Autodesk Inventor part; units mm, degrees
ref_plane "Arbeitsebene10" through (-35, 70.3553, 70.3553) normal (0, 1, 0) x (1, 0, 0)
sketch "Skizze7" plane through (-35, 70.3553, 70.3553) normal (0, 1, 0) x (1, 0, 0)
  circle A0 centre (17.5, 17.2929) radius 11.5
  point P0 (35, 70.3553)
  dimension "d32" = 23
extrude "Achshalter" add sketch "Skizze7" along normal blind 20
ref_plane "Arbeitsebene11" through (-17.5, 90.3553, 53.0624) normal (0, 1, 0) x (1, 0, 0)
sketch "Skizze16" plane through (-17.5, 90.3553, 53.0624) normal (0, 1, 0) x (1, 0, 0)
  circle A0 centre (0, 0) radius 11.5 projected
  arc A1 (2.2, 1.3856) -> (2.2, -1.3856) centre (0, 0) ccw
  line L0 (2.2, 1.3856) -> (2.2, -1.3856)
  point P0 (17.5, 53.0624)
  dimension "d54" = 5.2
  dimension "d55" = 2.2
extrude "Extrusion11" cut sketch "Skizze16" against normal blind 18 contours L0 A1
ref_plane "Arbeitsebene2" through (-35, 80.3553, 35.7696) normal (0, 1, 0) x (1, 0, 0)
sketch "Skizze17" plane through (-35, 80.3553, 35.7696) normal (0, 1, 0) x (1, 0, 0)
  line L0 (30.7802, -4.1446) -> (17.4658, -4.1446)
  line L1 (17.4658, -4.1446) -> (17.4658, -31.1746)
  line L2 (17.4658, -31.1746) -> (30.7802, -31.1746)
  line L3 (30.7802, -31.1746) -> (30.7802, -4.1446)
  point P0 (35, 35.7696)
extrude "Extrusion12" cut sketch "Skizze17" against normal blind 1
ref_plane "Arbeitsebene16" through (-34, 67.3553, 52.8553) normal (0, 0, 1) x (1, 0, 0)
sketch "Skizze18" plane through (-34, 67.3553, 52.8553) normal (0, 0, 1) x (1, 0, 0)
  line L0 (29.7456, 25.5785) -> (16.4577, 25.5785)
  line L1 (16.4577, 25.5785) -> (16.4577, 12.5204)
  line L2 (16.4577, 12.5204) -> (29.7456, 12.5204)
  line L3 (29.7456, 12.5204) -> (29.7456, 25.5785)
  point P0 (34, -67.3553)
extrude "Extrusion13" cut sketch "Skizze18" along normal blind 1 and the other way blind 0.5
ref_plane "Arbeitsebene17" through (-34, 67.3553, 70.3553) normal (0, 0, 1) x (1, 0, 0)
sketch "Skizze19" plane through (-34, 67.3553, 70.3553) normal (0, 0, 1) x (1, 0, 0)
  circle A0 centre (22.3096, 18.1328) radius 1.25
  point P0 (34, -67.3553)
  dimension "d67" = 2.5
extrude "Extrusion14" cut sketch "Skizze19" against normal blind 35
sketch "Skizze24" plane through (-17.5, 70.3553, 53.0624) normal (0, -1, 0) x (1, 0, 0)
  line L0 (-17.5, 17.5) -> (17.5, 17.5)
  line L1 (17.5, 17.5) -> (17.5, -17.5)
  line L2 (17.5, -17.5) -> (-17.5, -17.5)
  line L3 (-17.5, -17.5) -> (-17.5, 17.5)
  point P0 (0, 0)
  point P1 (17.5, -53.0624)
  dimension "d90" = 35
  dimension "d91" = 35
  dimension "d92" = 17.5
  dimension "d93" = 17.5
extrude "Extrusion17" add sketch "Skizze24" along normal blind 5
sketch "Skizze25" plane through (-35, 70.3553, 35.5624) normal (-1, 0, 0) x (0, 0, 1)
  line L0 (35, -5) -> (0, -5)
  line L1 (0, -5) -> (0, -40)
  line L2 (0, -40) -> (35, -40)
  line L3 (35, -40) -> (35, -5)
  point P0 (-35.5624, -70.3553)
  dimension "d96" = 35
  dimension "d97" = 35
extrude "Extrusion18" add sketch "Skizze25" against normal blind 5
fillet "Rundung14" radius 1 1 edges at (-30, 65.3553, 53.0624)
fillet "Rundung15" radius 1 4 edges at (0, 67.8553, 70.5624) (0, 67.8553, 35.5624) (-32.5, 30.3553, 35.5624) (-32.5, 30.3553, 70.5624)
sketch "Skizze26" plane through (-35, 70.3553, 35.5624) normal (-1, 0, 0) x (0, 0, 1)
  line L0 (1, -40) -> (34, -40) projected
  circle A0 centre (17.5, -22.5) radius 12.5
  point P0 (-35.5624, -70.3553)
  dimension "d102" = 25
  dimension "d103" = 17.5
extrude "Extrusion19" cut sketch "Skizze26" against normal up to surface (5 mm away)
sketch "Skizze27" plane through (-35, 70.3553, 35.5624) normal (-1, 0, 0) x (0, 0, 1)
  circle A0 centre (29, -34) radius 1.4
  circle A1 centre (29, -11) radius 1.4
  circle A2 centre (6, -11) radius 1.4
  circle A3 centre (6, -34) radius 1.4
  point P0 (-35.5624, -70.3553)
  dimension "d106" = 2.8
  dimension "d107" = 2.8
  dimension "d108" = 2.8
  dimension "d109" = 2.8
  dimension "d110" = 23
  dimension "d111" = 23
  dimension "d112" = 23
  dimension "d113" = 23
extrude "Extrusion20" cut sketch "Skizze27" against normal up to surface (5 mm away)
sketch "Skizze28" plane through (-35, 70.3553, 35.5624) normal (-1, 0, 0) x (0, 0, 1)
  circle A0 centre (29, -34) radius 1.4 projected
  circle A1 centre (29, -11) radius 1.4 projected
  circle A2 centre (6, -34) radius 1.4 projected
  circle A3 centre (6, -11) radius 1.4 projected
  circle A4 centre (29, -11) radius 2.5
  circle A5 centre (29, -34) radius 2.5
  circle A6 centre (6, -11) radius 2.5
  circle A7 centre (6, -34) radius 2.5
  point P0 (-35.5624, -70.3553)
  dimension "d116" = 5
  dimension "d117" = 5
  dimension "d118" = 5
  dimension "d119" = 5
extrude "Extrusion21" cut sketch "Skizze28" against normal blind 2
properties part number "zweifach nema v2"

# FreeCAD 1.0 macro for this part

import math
import FreeCAD as App
import Part
import Sketcher
from FreeCAD import Vector
Q = App.Units.Quantity


def edges_at(feature, points):
    """Names of the edges that pass closest to the given points."""
    edges = feature.Shape.Edges
    near = lambda p: min(range(len(edges)), key=lambda i: edges[i].distToShape(Part.Vertex(*p))[0])
    return sorted({f"Edge{near(p) + 1}" for p in points})

doc = App.newDocument("Part")
body = doc.addObject("PartDesign::Body", "Body")

# Sketch on XZ plane
sketch1 = doc.addObject("Sketcher::SketchObject", "Sketch")
body.addObject(sketch1)
sketch1.AttachmentSupport = (doc.XZ_Plane, [""])
sketch1.MapMode = "FlatFace"
sketch1.AttachmentOffset = App.Placement(Vector(0, 0, -70.3553), App.Rotation())
sketch1.addGeometry(Part.Circle(Vector(-18, 53, 0), Vector(0, 0, 1), 12), False)
sketch1.addConstraint(Sketcher.Constraint("Diameter", 0, Q("23 mm")))
sketch1.addConstraint(Sketcher.Constraint("DistanceX", 0, 3, -1, 1, Q("17.5 mm")))
sketch1.addConstraint(Sketcher.Constraint("DistanceY", -1, 1, 0, 3, Q("53.0624 mm")))
pad1 = doc.addObject("PartDesign::Pad", "Pad")
body.addObject(pad1)
pad1.Profile = sketch1
pad1.Length = 20
pad1.Reversed = True

# Sketch on XZ plane
sketch2 = doc.addObject("Sketcher::SketchObject", "Sketch001")
body.addObject(sketch2)
sketch2.AttachmentSupport = (doc.XZ_Plane, [""])
sketch2.MapMode = "FlatFace"
sketch2.AttachmentOffset = App.Placement(Vector(0, 0, -90.3553), App.Rotation())
sketch2.addGeometry(Part.LineSegment(Vector(-15.3, 54.4, 0), Vector(-15.3, 51.7, 0)), False)
sketch2.addGeometry(Part.ArcOfCircle(Part.Circle(Vector(-17.5, 53.1, 0), Vector(0, 0, 1), 2.6), math.radians(32), math.radians(328)), False)
sketch2.addConstraint(Sketcher.Constraint("Coincident", 0, 1, 1, 1))
sketch2.addConstraint(Sketcher.Constraint("Coincident", 1, 2, 0, 2))
sketch2.addConstraint(Sketcher.Constraint("Vertical", 0))
sketch2.addConstraint(Sketcher.Constraint("Radius", 1, Q("2.6 mm")))
sketch2.addConstraint(Sketcher.Constraint("DistanceX", 1, 3, 0, 1, Q("2.2 mm")))
sketch2.addConstraint(Sketcher.Constraint("DistanceX", 1, 3, -1, 1, Q("17.5 mm")))
sketch2.addConstraint(Sketcher.Constraint("DistanceY", -1, 1, 0, 1, Q("54.448 mm")))
pocket1 = doc.addObject("PartDesign::Pocket", "Pocket")
body.addObject(pocket1)
pocket1.Profile = sketch2
pocket1.Length = 18
pocket1.Reversed = True

# Sketch on XZ plane
sketch3 = doc.addObject("Sketcher::SketchObject", "Sketch002")
body.addObject(sketch3)
sketch3.AttachmentSupport = (doc.XZ_Plane, [""])
sketch3.MapMode = "FlatFace"
sketch3.AttachmentOffset = App.Placement(Vector(0, 0, -80.3553), App.Rotation())
sketch3.addGeometry(Part.LineSegment(Vector(-4, 67, 0), Vector(-4, 40, 0)), False)
sketch3.addGeometry(Part.LineSegment(Vector(-4, 40, 0), Vector(-18, 40, 0)), False)
sketch3.addGeometry(Part.LineSegment(Vector(-18, 40, 0), Vector(-18, 67, 0)), False)
sketch3.addGeometry(Part.LineSegment(Vector(-18, 67, 0), Vector(-4, 67, 0)), False)
sketch3.addConstraint(Sketcher.Constraint("Coincident", 0, 2, 1, 1))
sketch3.addConstraint(Sketcher.Constraint("Coincident", 1, 2, 2, 1))
sketch3.addConstraint(Sketcher.Constraint("Coincident", 2, 2, 3, 1))
sketch3.addConstraint(Sketcher.Constraint("Coincident", 3, 2, 0, 1))
sketch3.addConstraint(Sketcher.Constraint("Vertical", 0))
sketch3.addConstraint(Sketcher.Constraint("Horizontal", 1))
sketch3.addConstraint(Sketcher.Constraint("Vertical", 2))
sketch3.addConstraint(Sketcher.Constraint("Horizontal", 3))
sketch3.addConstraint(Sketcher.Constraint("DistanceY", 0, 2, 0, 1, Q("27.03 mm")))
sketch3.addConstraint(Sketcher.Constraint("DistanceX", 1, 2, 1, 1, Q("13.3144 mm")))
sketch3.addConstraint(Sketcher.Constraint("DistanceX", 0, 2, -1, 1, Q("4.2198 mm")))
sketch3.addConstraint(Sketcher.Constraint("DistanceY", -1, 1, 0, 2, Q("39.9142 mm")))
pocket2 = doc.addObject("PartDesign::Pocket", "Pocket001")
body.addObject(pocket2)
pocket2.Profile = sketch3
pocket2.Length = 1
pocket2.Reversed = True

# Sketch on XY plane
sketch4 = doc.addObject("Sketcher::SketchObject", "Sketch003")
body.addObject(sketch4)
sketch4.AttachmentSupport = (doc.XY_Plane, [""])
sketch4.MapMode = "FlatFace"
sketch4.AttachmentOffset = App.Placement(Vector(0, 0, 52.8553), App.Rotation())
sketch4.addGeometry(Part.LineSegment(Vector(-4, 80, 0), Vector(-4, 93, 0)), False)
sketch4.addGeometry(Part.LineSegment(Vector(-4, 93, 0), Vector(-18, 93, 0)), False)
sketch4.addGeometry(Part.LineSegment(Vector(-18, 93, 0), Vector(-18, 80, 0)), False)
sketch4.addGeometry(Part.LineSegment(Vector(-18, 80, 0), Vector(-4, 80, 0)), False)
sketch4.addConstraint(Sketcher.Constraint("Coincident", 0, 2, 1, 1))
sketch4.addConstraint(Sketcher.Constraint("Coincident", 1, 2, 2, 1))
sketch4.addConstraint(Sketcher.Constraint("Coincident", 2, 2, 3, 1))
sketch4.addConstraint(Sketcher.Constraint("Coincident", 3, 2, 0, 1))
sketch4.addConstraint(Sketcher.Constraint("Vertical", 0))
sketch4.addConstraint(Sketcher.Constraint("Horizontal", 1))
sketch4.addConstraint(Sketcher.Constraint("Vertical", 2))
sketch4.addConstraint(Sketcher.Constraint("Horizontal", 3))
sketch4.addConstraint(Sketcher.Constraint("DistanceX", 1, 2, 1, 1, Q("13.288 mm")))
sketch4.addConstraint(Sketcher.Constraint("DistanceY", 0, 1, 0, 2, Q("13.058 mm")))
sketch4.addConstraint(Sketcher.Constraint("DistanceX", 0, 2, -1, 1, Q("4.2544 mm")))
sketch4.addConstraint(Sketcher.Constraint("DistanceY", -1, 1, 0, 2, Q("92.9338 mm")))
pocket3 = doc.addObject("PartDesign::Pocket", "Pocket002")
body.addObject(pocket3)
pocket3.Profile = sketch4
pocket3.Type = "TwoLengths"
pocket3.Length = 1
pocket3.Length2 = 0.5
pocket3.Reversed = True

# Sketch on XY plane
sketch5 = doc.addObject("Sketcher::SketchObject", "Sketch004")
body.addObject(sketch5)
sketch5.AttachmentSupport = (doc.XY_Plane, [""])
sketch5.MapMode = "FlatFace"
sketch5.AttachmentOffset = App.Placement(Vector(0, 0, 70.3553), App.Rotation())
sketch5.addGeometry(Part.Circle(Vector(-11.7, 85.5, 0), Vector(0, 0, 1), 1.2), False)
sketch5.addConstraint(Sketcher.Constraint("Diameter", 0, Q("2.5 mm")))
sketch5.addConstraint(Sketcher.Constraint("DistanceY", -1, 1, 0, 3, Q("85.488 mm")))
sketch5.addConstraint(Sketcher.Constraint("DistanceX", 0, 3, -1, 1, Q("11.6904 mm")))
pocket4 = doc.addObject("PartDesign::Pocket", "Pocket003")
body.addObject(pocket4)
pocket4.Profile = sketch5
pocket4.Length = 35

# Sketch on XZ plane
sketch6 = doc.addObject("Sketcher::SketchObject", "Sketch005")
body.addObject(sketch6)
sketch6.AttachmentSupport = (doc.XZ_Plane, [""])
sketch6.MapMode = "FlatFace"
sketch6.AttachmentOffset = App.Placement(Vector(0, 0, -70.3553), App.Rotation())
sketch6.addGeometry(Part.LineSegment(Vector(0, 71, 0), Vector(-35, 71, 0)), False)
sketch6.addGeometry(Part.LineSegment(Vector(-35, 71, 0), Vector(-35, 36, 0)), False)
sketch6.addGeometry(Part.LineSegment(Vector(-35, 36, 0), Vector(0, 36, 0)), False)
sketch6.addGeometry(Part.LineSegment(Vector(0, 36, 0), Vector(0, 71, 0)), False)
sketch6.addConstraint(Sketcher.Constraint("Coincident", 0, 2, 1, 1))
sketch6.addConstraint(Sketcher.Constraint("Coincident", 1, 2, 2, 1))
sketch6.addConstraint(Sketcher.Constraint("Coincident", 2, 2, 3, 1))
sketch6.addConstraint(Sketcher.Constraint("Coincident", 3, 2, 0, 1))
sketch6.addConstraint(Sketcher.Constraint("Horizontal", 0))
sketch6.addConstraint(Sketcher.Constraint("Vertical", 1))
sketch6.addConstraint(Sketcher.Constraint("Horizontal", 2))
sketch6.addConstraint(Sketcher.Constraint("Vertical", 3))
sketch6.addConstraint(Sketcher.Constraint("PointOnObject", 2, 2, -2))
sketch6.addConstraint(Sketcher.Constraint("Equal", 2, 1))
sketch6.addConstraint(Sketcher.Constraint("DistanceX", 0, 2, 0, 1, Q("35 mm")))
sketch6.addConstraint(Sketcher.Constraint("DistanceY", -1, 1, 0, 2, Q("70.5624 mm")))
pad2 = doc.addObject("PartDesign::Pad", "Pad001")
body.addObject(pad2)
pad2.Profile = sketch6
pad2.Length = 5

# Sketch on YZ plane
sketch7 = doc.addObject("Sketcher::SketchObject", "Sketch006")
body.addObject(sketch7)
sketch7.AttachmentSupport = (doc.YZ_Plane, [""])
sketch7.MapMode = "FlatFace"
sketch7.AttachmentOffset = App.Placement(Vector(0, 0, -35), App.Rotation())
sketch7.addGeometry(Part.LineSegment(Vector(30, 71, 0), Vector(65, 71, 0)), False)
sketch7.addGeometry(Part.LineSegment(Vector(65, 71, 0), Vector(65, 36, 0)), False)
sketch7.addGeometry(Part.LineSegment(Vector(65, 36, 0), Vector(30, 36, 0)), False)
sketch7.addGeometry(Part.LineSegment(Vector(30, 36, 0), Vector(30, 71, 0)), False)
sketch7.addConstraint(Sketcher.Constraint("Coincident", 0, 2, 1, 1))
sketch7.addConstraint(Sketcher.Constraint("Coincident", 1, 2, 2, 1))
sketch7.addConstraint(Sketcher.Constraint("Coincident", 2, 2, 3, 1))
sketch7.addConstraint(Sketcher.Constraint("Coincident", 3, 2, 0, 1))
sketch7.addConstraint(Sketcher.Constraint("Horizontal", 0))
sketch7.addConstraint(Sketcher.Constraint("Vertical", 1))
sketch7.addConstraint(Sketcher.Constraint("Horizontal", 2))
sketch7.addConstraint(Sketcher.Constraint("Vertical", 3))
sketch7.addConstraint(Sketcher.Constraint("Equal", 2, 1))
sketch7.addConstraint(Sketcher.Constraint("DistanceX", 0, 1, 0, 2, Q("35 mm")))
sketch7.addConstraint(Sketcher.Constraint("DistanceX", -1, 1, 0, 2, Q("65.3553 mm")))
sketch7.addConstraint(Sketcher.Constraint("DistanceY", -1, 1, 0, 2, Q("70.5624 mm")))
pad3 = doc.addObject("PartDesign::Pad", "Pad002")
body.addObject(pad3)
pad3.Profile = sketch7
pad3.Length = 5
doc.recompute()

fillet = doc.addObject("PartDesign::Fillet", "Fillet")
body.addObject(fillet)
fillet.Base = (pad3, edges_at(pad3, [(-30, 65.355, 53.062)]))
fillet.Radius = 1
doc.recompute()

fillet2 = doc.addObject("PartDesign::Fillet", "Fillet001")
body.addObject(fillet2)
fillet2.Base = (fillet, edges_at(fillet, [
    (0, 67.855, 70.562),
    (0, 67.855, 35.562),
    (-32.5, 30.355, 35.562),
    (-32.5, 30.355, 70.562),
]))
fillet2.Radius = 1

# Sketch on YZ plane
sketch8 = doc.addObject("Sketcher::SketchObject", "Sketch007")
body.addObject(sketch8)
sketch8.AttachmentSupport = (doc.YZ_Plane, [""])
sketch8.MapMode = "FlatFace"
sketch8.AttachmentOffset = App.Placement(Vector(0, 0, -35), App.Rotation())
sketch8.addGeometry(Part.Circle(Vector(48, 53, 0), Vector(0, 0, 1), 12), False)
sketch8.addConstraint(Sketcher.Constraint("Diameter", 0, Q("25 mm")))
sketch8.addConstraint(Sketcher.Constraint("DistanceX", -1, 1, 0, 3, Q("47.8553 mm")))
sketch8.addConstraint(Sketcher.Constraint("DistanceY", -1, 1, 0, 3, Q("53.0624 mm")))
pocket5 = doc.addObject("PartDesign::Pocket", "Pocket004")
body.addObject(pocket5)
pocket5.Profile = sketch8
pocket5.Length = 5
pocket5.Reversed = True

# Sketch on YZ plane
sketch9 = doc.addObject("Sketcher::SketchObject", "Sketch008")
body.addObject(sketch9)
sketch9.AttachmentSupport = (doc.YZ_Plane, [""])
sketch9.MapMode = "FlatFace"
sketch9.AttachmentOffset = App.Placement(Vector(0, 0, -35), App.Rotation())
sketch9.addGeometry(Part.Circle(Vector(36.4, 64.6, 0), Vector(0, 0, 1), 1.4), False)
sketch9.addGeometry(Part.Circle(Vector(59.4, 64.6, 0), Vector(0, 0, 1), 1.4), False)
sketch9.addGeometry(Part.Circle(Vector(59.4, 41.6, 0), Vector(0, 0, 1), 1.4), False)
sketch9.addGeometry(Part.Circle(Vector(36.4, 41.6, 0), Vector(0, 0, 1), 1.4), False)
sketch9.addConstraint(Sketcher.Constraint("Equal", 0, 1))
sketch9.addConstraint(Sketcher.Constraint("Equal", 1, 2))
sketch9.addConstraint(Sketcher.Constraint("Equal", 2, 3))
sketch9.addConstraint(Sketcher.Constraint("Horizontal", 0, 3, 1, 3))
sketch9.addConstraint(Sketcher.Constraint("Horizontal", 2, 3, 3, 3))
sketch9.addConstraint(Sketcher.Constraint("Vertical", 1, 3, 2, 3))
sketch9.addConstraint(Sketcher.Constraint("Vertical", 0, 3, 3, 3))
sketch9.addConstraint(Sketcher.Constraint("Diameter", 0, Q("2.8 mm")))
sketch9.addConstraint(Sketcher.Constraint("DistanceX", 0, 3, 1, 3, Q("23 mm")))
sketch9.addConstraint(Sketcher.Constraint("DistanceY", 2, 3, 1, 3, Q("23 mm")))
sketch9.addConstraint(Sketcher.Constraint("DistanceX", -1, 1, 0, 3, Q("36.3553 mm")))
sketch9.addConstraint(Sketcher.Constraint("DistanceY", -1, 1, 0, 3, Q("64.5624 mm")))
pocket6 = doc.addObject("PartDesign::Pocket", "Pocket005")
body.addObject(pocket6)
pocket6.Profile = sketch9
pocket6.Length = 5
pocket6.Reversed = True

# Sketch on YZ plane
sketch10 = doc.addObject("Sketcher::SketchObject", "Sketch009")
body.addObject(sketch10)
sketch10.AttachmentSupport = (doc.YZ_Plane, [""])
sketch10.MapMode = "FlatFace"
sketch10.AttachmentOffset = App.Placement(Vector(0, 0, -35), App.Rotation())
sketch10.addGeometry(Part.Circle(Vector(59.4, 64.6, 0), Vector(0, 0, 1), 2.5), False)
sketch10.addGeometry(Part.Circle(Vector(59.4, 64.6, 0), Vector(0, 0, 1), 1.4), False)
sketch10.addGeometry(Part.Circle(Vector(36.4, 64.6, 0), Vector(0, 0, 1), 2.5), False)
sketch10.addGeometry(Part.Circle(Vector(36.4, 64.6, 0), Vector(0, 0, 1), 1.4), False)
sketch10.addGeometry(Part.Circle(Vector(59.4, 41.6, 0), Vector(0, 0, 1), 2.5), False)
sketch10.addGeometry(Part.Circle(Vector(59.4, 41.6, 0), Vector(0, 0, 1), 1.4), False)
sketch10.addGeometry(Part.Circle(Vector(36.4, 41.6, 0), Vector(0, 0, 1), 2.5), False)
sketch10.addGeometry(Part.Circle(Vector(36.4, 41.6, 0), Vector(0, 0, 1), 1.4), False)
sketch10.addConstraint(Sketcher.Constraint("Coincident", 1, 3, 0, 3))
sketch10.addConstraint(Sketcher.Constraint("Coincident", 3, 3, 2, 3))
sketch10.addConstraint(Sketcher.Constraint("Coincident", 5, 3, 4, 3))
sketch10.addConstraint(Sketcher.Constraint("Coincident", 7, 3, 6, 3))
sketch10.addConstraint(Sketcher.Constraint("Equal", 0, 2))
sketch10.addConstraint(Sketcher.Constraint("Equal", 1, 3))
sketch10.addConstraint(Sketcher.Constraint("Equal", 2, 4))
sketch10.addConstraint(Sketcher.Constraint("Equal", 3, 5))
sketch10.addConstraint(Sketcher.Constraint("Equal", 4, 6))
sketch10.addConstraint(Sketcher.Constraint("Equal", 5, 7))
sketch10.addConstraint(Sketcher.Constraint("Horizontal", 1, 3, 2, 3))
sketch10.addConstraint(Sketcher.Constraint("Horizontal", 5, 3, 6, 3))
sketch10.addConstraint(Sketcher.Constraint("Vertical", 1, 3, 4, 3))
sketch10.addConstraint(Sketcher.Constraint("Vertical", 3, 3, 6, 3))
sketch10.addConstraint(Sketcher.Constraint("Diameter", 0, Q("5 mm")))
sketch10.addConstraint(Sketcher.Constraint("Diameter", 1, Q("2.8 mm")))
sketch10.addConstraint(Sketcher.Constraint("DistanceX", 2, 3, 0, 3, Q("23 mm")))
sketch10.addConstraint(Sketcher.Constraint("DistanceY", 4, 3, 0, 3, Q("23 mm")))
sketch10.addConstraint(Sketcher.Constraint("DistanceX", -1, 1, 0, 3, Q("59.3553 mm")))
sketch10.addConstraint(Sketcher.Constraint("DistanceY", -1, 1, 0, 3, Q("64.5624 mm")))
pocket7 = doc.addObject("PartDesign::Pocket", "Pocket006")
body.addObject(pocket7)
pocket7.Profile = sketch10
pocket7.Length = 2
pocket7.Reversed = True

doc.recompute()
